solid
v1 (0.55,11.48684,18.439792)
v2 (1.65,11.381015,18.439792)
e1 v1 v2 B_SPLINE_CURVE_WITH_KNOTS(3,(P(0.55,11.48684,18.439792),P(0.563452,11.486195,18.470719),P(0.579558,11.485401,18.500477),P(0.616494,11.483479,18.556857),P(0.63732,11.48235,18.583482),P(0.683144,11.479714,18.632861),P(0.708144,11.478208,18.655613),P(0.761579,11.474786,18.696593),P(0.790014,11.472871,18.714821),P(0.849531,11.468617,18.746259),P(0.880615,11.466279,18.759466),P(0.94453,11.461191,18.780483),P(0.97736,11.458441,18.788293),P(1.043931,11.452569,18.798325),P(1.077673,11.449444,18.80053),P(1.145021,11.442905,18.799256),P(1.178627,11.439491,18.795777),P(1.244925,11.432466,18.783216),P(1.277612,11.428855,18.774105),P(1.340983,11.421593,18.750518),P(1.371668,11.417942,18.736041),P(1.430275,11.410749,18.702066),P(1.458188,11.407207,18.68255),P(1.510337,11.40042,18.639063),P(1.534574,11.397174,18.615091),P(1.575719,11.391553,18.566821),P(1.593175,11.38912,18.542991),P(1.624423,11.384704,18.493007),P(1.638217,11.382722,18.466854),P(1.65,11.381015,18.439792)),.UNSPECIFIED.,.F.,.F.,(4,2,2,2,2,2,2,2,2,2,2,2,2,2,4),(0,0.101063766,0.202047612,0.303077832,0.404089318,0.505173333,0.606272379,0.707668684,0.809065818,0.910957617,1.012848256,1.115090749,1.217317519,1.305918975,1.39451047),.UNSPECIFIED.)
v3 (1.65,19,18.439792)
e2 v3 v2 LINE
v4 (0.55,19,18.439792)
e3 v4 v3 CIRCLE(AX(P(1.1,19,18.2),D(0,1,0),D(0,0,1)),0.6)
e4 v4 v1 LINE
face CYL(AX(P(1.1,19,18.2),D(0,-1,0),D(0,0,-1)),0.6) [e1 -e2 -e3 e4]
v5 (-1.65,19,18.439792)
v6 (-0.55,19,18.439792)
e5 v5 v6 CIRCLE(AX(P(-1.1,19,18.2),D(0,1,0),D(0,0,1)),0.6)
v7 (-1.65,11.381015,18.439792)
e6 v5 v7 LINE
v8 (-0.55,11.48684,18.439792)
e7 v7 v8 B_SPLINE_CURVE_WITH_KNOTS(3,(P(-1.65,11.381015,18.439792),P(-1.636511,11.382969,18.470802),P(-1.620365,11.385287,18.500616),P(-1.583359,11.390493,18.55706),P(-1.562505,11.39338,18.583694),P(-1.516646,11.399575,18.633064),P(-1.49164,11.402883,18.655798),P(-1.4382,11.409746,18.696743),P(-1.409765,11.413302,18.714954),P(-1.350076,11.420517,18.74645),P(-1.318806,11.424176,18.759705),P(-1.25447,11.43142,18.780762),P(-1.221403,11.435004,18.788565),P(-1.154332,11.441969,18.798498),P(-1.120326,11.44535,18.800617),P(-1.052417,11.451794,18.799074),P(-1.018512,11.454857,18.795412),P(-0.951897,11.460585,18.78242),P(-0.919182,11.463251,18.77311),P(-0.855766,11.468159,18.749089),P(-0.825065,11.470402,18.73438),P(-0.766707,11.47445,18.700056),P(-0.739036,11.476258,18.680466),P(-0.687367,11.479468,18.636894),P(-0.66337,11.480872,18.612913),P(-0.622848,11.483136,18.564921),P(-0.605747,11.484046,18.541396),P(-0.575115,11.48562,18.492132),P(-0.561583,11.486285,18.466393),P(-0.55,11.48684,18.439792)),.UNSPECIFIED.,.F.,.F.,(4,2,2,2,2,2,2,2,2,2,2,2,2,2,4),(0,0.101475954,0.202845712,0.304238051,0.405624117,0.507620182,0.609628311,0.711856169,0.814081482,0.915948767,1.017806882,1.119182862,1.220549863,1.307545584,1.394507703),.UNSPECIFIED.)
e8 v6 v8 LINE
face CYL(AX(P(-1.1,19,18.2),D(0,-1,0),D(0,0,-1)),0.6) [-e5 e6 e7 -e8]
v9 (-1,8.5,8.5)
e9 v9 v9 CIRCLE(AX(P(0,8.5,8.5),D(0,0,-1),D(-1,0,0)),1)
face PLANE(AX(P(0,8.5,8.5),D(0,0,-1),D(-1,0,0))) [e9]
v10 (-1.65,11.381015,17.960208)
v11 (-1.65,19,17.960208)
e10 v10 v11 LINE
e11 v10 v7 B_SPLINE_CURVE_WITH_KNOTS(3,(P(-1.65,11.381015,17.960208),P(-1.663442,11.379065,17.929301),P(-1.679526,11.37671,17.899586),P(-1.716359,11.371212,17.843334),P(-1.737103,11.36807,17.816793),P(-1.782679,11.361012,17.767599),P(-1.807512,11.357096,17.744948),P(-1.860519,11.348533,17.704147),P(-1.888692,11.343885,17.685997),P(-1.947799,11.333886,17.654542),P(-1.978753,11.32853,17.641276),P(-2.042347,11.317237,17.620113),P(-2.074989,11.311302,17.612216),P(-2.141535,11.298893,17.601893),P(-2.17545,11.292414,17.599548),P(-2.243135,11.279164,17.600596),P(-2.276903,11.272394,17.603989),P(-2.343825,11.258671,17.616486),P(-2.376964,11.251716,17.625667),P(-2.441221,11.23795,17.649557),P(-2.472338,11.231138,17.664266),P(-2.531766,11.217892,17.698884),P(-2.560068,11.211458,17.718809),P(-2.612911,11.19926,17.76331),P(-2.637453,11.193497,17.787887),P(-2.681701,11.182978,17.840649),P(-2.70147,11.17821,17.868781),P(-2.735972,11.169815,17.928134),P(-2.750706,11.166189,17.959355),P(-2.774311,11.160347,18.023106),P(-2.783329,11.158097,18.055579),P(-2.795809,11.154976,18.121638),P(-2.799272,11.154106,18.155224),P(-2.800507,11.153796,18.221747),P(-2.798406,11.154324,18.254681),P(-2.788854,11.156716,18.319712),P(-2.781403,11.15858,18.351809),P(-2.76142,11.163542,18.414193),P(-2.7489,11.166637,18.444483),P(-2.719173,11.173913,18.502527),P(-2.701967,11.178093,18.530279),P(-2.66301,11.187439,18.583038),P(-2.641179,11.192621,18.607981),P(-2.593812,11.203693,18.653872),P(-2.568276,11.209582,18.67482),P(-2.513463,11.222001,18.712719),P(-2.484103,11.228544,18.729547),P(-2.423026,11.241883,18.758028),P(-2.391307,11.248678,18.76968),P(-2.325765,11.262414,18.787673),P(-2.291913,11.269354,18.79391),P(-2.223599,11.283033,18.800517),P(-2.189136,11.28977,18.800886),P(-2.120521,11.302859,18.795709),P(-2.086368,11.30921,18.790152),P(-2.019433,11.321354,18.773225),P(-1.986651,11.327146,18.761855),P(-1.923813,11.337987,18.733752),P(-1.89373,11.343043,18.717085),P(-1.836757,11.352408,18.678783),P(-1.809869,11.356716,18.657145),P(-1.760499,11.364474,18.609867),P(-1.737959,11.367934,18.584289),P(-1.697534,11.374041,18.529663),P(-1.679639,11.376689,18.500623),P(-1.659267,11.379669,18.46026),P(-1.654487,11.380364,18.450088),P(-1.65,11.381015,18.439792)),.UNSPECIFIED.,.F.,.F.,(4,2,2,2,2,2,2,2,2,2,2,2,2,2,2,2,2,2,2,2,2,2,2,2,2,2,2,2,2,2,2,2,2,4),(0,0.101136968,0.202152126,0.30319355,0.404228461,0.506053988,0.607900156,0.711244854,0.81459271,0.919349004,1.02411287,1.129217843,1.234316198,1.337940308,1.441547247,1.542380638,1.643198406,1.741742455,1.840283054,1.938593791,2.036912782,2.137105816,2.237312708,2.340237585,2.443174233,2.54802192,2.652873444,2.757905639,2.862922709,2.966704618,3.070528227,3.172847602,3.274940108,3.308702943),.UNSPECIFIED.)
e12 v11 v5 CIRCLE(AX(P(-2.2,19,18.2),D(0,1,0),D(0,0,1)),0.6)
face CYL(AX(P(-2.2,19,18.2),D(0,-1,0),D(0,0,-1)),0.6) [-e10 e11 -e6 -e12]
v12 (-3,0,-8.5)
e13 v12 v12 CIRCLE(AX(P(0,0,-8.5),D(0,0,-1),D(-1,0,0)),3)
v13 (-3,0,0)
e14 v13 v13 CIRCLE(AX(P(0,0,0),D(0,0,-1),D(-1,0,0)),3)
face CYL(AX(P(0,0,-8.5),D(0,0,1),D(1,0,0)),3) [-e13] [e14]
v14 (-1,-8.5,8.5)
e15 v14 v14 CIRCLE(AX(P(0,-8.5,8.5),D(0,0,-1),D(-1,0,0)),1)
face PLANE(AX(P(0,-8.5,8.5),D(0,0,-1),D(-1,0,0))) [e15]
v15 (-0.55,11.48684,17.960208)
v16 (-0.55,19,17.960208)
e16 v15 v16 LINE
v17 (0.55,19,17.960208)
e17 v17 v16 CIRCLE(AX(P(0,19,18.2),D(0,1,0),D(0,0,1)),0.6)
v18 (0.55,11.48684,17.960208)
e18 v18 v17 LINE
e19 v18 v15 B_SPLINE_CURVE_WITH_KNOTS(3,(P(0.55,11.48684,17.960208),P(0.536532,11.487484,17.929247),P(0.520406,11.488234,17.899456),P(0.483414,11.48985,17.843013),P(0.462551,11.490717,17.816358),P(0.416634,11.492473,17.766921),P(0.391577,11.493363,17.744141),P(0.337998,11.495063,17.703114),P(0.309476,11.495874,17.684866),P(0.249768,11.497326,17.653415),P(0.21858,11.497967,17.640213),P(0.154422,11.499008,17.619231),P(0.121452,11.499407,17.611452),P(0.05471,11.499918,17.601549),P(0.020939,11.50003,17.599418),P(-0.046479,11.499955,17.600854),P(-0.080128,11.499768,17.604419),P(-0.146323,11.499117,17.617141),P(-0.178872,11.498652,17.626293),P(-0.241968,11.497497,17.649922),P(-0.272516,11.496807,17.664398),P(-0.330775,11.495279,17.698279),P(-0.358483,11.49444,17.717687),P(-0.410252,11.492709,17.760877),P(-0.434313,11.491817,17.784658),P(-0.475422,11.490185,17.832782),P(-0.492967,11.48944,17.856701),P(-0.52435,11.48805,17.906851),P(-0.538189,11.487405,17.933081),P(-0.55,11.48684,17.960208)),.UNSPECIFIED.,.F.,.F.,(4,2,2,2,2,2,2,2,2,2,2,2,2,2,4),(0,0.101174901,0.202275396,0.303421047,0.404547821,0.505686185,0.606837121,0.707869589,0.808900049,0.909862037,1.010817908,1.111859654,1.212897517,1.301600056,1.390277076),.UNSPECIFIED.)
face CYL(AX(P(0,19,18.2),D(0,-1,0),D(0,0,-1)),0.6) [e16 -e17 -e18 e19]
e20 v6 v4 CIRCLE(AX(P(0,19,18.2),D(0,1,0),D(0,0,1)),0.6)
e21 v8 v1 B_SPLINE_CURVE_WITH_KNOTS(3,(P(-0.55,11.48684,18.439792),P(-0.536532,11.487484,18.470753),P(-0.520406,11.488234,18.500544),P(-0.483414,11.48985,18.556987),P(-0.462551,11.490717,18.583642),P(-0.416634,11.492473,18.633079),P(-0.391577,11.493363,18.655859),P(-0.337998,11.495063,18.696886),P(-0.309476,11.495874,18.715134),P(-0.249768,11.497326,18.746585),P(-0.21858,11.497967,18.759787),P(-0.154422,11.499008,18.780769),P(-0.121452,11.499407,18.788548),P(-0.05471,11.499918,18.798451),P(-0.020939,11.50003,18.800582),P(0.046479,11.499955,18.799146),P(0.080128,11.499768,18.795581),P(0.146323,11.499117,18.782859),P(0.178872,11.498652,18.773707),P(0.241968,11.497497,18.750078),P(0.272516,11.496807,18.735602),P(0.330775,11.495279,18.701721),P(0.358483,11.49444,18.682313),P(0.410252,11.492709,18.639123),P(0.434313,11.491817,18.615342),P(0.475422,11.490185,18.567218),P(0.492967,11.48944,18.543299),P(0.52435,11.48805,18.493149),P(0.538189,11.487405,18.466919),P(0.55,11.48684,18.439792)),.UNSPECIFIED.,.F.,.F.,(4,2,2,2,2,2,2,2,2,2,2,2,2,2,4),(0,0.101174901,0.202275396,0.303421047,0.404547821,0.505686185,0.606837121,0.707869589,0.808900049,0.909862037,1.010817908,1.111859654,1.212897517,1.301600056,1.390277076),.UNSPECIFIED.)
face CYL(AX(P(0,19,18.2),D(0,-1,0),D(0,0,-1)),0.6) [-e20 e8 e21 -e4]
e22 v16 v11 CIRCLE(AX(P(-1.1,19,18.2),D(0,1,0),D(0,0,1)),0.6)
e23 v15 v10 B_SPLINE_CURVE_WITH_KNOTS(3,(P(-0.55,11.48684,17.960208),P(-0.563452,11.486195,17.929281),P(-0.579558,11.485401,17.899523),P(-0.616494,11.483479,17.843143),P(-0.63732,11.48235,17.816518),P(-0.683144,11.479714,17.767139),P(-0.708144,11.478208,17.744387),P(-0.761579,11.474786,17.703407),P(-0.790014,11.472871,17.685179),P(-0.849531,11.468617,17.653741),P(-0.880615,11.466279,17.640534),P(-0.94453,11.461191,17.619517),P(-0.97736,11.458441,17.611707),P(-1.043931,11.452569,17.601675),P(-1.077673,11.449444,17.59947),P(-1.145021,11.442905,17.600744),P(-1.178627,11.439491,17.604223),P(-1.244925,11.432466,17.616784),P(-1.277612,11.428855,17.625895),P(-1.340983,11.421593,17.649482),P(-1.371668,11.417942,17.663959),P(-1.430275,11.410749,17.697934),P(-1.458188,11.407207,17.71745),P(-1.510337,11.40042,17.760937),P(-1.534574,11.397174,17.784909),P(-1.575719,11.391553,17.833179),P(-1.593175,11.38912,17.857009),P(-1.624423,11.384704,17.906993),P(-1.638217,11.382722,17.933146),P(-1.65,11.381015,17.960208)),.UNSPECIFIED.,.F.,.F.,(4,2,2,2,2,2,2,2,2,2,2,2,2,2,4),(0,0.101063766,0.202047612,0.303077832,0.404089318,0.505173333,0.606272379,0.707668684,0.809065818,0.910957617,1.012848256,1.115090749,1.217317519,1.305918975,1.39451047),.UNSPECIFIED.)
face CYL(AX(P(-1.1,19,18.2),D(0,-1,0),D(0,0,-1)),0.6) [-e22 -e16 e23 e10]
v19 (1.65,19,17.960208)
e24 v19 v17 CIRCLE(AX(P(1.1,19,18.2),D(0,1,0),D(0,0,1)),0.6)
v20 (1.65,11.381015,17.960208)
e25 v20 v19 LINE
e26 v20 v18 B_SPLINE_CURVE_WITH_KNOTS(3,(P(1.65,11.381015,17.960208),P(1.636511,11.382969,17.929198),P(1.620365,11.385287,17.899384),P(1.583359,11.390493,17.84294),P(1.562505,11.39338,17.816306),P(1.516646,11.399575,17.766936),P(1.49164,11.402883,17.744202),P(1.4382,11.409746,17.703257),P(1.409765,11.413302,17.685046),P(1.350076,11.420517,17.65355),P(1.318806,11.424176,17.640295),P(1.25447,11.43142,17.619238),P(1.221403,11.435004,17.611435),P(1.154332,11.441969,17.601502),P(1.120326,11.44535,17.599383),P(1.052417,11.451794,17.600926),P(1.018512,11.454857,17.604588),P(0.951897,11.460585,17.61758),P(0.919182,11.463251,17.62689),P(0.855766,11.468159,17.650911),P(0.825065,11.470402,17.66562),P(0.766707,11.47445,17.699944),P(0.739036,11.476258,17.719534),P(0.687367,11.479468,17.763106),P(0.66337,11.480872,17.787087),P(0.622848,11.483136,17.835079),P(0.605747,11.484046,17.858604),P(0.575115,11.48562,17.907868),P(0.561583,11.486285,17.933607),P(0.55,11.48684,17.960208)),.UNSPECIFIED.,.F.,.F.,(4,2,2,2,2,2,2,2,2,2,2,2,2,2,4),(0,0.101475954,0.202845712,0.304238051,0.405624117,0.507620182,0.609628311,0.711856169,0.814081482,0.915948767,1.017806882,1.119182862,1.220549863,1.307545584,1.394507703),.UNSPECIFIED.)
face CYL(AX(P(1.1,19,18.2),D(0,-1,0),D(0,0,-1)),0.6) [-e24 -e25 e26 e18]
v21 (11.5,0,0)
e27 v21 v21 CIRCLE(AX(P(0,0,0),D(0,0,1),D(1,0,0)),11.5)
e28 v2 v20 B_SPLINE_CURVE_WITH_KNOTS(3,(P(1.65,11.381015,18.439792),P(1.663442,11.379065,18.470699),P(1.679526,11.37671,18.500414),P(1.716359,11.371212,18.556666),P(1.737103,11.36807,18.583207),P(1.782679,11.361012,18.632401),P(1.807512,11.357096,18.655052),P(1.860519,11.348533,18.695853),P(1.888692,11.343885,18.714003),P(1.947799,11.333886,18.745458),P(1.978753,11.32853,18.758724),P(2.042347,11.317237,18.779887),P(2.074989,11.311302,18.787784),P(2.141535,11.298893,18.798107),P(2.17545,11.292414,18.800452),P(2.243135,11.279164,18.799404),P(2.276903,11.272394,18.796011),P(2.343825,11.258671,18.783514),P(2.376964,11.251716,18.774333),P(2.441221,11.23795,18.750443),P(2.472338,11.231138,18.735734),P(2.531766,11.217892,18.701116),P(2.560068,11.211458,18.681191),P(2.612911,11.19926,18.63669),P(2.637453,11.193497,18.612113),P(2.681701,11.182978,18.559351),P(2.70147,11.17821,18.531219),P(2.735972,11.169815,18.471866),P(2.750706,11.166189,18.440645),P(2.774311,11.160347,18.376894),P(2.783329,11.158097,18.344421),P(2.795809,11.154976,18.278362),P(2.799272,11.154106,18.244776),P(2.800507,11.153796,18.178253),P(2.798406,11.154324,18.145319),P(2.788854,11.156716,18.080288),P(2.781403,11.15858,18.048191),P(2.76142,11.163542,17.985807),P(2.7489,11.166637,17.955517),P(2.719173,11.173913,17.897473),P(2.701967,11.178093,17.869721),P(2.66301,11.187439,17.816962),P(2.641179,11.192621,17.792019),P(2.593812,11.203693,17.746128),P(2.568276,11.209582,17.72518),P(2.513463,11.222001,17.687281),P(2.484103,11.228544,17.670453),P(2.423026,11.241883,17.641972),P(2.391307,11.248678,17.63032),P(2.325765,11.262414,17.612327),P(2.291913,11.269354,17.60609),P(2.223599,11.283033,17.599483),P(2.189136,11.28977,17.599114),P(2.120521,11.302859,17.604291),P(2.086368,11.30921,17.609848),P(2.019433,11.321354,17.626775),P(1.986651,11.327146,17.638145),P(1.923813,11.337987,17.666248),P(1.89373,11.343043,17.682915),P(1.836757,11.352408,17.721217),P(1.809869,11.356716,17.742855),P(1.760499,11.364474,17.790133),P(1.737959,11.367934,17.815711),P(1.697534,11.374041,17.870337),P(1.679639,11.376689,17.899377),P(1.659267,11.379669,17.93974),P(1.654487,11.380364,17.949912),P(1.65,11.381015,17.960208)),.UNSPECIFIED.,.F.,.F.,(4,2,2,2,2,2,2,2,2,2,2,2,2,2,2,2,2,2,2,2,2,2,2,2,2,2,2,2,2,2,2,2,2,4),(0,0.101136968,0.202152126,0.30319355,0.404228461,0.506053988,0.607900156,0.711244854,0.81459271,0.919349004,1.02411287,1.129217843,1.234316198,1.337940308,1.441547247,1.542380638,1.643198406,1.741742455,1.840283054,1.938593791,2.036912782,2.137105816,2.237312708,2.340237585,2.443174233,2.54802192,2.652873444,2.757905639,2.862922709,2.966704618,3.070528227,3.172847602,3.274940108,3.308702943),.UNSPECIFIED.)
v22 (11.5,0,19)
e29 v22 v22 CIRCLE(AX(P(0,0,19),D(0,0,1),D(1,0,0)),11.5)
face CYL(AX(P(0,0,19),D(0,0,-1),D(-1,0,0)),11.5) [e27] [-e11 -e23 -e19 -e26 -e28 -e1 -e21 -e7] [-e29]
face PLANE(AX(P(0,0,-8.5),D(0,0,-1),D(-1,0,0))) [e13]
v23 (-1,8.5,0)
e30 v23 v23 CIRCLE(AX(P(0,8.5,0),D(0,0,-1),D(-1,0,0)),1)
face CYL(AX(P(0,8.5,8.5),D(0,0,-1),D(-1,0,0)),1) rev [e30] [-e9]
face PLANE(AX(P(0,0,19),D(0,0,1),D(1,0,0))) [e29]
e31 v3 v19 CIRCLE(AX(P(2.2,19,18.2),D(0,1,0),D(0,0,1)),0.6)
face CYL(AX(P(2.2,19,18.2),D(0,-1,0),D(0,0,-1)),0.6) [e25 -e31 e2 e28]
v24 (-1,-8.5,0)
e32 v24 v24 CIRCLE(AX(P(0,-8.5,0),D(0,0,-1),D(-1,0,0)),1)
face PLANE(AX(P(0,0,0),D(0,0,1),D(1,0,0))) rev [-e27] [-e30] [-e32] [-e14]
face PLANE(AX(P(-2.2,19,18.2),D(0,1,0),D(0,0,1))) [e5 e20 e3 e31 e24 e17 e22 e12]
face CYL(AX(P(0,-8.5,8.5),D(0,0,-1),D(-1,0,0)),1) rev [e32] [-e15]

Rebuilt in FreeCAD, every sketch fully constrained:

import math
import FreeCAD as App
import Part
import Sketcher

V = App.Vector
Q = App.Units.Quantity

doc = App.newDocument("Part")
body = doc.addObject("PartDesign::Body", "Body")

# Sketch on XY plane
sketch1 = doc.addObject("Sketcher::SketchObject", "Sketch")
body.addObject(sketch1)
sketch1.AttachmentSupport = (doc.XY_Plane, [""])
sketch1.MapMode = "FlatFace"
sketch1.addGeometry(Part.Circle(V(0, 0, 0), V(0, 0, 1), 12), False)
sketch1.addConstraint([
    Sketcher.Constraint("Coincident", 0, 3, -1, 1),
    Sketcher.Constraint("Diameter", 0, Q("23 mm")),
])
pad1 = doc.addObject("PartDesign::Pad", "Pad")
body.addObject(pad1)
pad1.Profile = sketch1
pad1.Length = 19

# Sketch on XZ plane
sketch2 = doc.addObject("Sketcher::SketchObject", "Sketch001")
body.addObject(sketch2)
sketch2.AttachmentSupport = (doc.XZ_Plane, [""])
sketch2.MapMode = "FlatFace"
sketch2.addGeometry([
    Part.ArcOfCircle(Part.Circle(V(0, 18.2, 0), V(0, 0, 1), 0.6), math.radians(-156), math.radians(-24)),  # 0
    Part.ArcOfCircle(Part.Circle(V(-1.1, 18.2, 0), V(0, 0, 1), 0.6), math.radians(-156), math.radians(-24)),  # 1
    Part.ArcOfCircle(Part.Circle(V(-2.2, 18.2, 0), V(0, 0, 1), 0.6), math.radians(24), math.radians(336)),  # 2
    Part.ArcOfCircle(Part.Circle(V(-1.1, 18.2, 0), V(0, 0, 1), 0.6), math.radians(24), math.radians(156)),  # 3
    Part.ArcOfCircle(Part.Circle(V(0, 18.2, 0), V(0, 0, 1), 0.6), math.radians(24), math.radians(156)),  # 4
    Part.ArcOfCircle(Part.Circle(V(1.1, 18.2, 0), V(0, 0, 1), 0.6), math.radians(24), math.radians(156)),  # 5
    Part.ArcOfCircle(Part.Circle(V(2.2, 18.2, 0), V(0, 0, 1), 0.6), math.radians(-156), math.radians(156)),  # 6
    Part.ArcOfCircle(Part.Circle(V(1.1, 18.2, 0), V(0, 0, 1), 0.6), math.radians(-156), math.radians(-24)),  # 7
], False)
sketch2.addConstraint([
    Sketcher.Constraint("Coincident", 0, 1, 1, 2),
    Sketcher.Constraint("Coincident", 1, 1, 2, 2),
    Sketcher.Constraint("Coincident", 2, 1, 3, 2),
    Sketcher.Constraint("Coincident", 3, 1, 4, 2),
    Sketcher.Constraint("Coincident", 4, 1, 5, 2),
    Sketcher.Constraint("Coincident", 5, 1, 6, 2),
    Sketcher.Constraint("Coincident", 6, 1, 7, 2),
    Sketcher.Constraint("Coincident", 7, 1, 0, 2),
    Sketcher.Constraint("Coincident", 3, 3, 1, 3),
    Sketcher.Constraint("Coincident", 4, 3, 0, 3),
    Sketcher.Constraint("Coincident", 7, 3, 5, 3),
    Sketcher.Constraint("Equal", 0, 1),
    Sketcher.Constraint("Equal", 1, 2),
    Sketcher.Constraint("Equal", 2, 3),
    Sketcher.Constraint("Equal", 3, 4),
    Sketcher.Constraint("Equal", 4, 5),
    Sketcher.Constraint("Equal", 5, 6),
    Sketcher.Constraint("Equal", 6, 7),
    Sketcher.Constraint("Symmetric", 1, 3, 5, 3, -2),
    Sketcher.Constraint("Symmetric", 2, 3, 6, 3, -2),
    Sketcher.Constraint("PointOnObject", 0, 3, -2),
    Sketcher.Constraint("Horizontal", 0, 3, 1, 3),
    Sketcher.Constraint("Horizontal", 1, 3, 2, 3),
    Sketcher.Constraint("Horizontal", 0, 1, 1, 1),
    Sketcher.Constraint("Radius", 0, Q("0.6 mm")),
    Sketcher.Constraint("DistanceY", -1, 1, 0, 3, Q("18.2 mm")),
    Sketcher.Constraint("DistanceX", 1, 3, -1, 1, Q("1.1 mm")),
])
pad2 = doc.addObject("PartDesign::Pad", "Pad001")
body.addObject(pad2)
pad2.Profile = sketch2
pad2.Length = 19
pad2.Reversed = True

# Sketch on XY plane
sketch3 = doc.addObject("Sketcher::SketchObject", "Sketch002")
body.addObject(sketch3)
sketch3.AttachmentSupport = (doc.XY_Plane, [""])
sketch3.MapMode = "FlatFace"
sketch3.addGeometry(Part.Circle(V(0, 0, 0), V(0, 0, 1), 3), False)
sketch3.addConstraint([
    Sketcher.Constraint("Coincident", 0, 3, -1, 1),
    Sketcher.Constraint("Diameter", 0, Q("6 mm")),
])
pad3 = doc.addObject("PartDesign::Pad", "Pad002")
body.addObject(pad3)
pad3.Profile = sketch3
pad3.Length = 8.5
pad3.Reversed = True

# Sketch on XY plane
sketch4 = doc.addObject("Sketcher::SketchObject", "Sketch003")
body.addObject(sketch4)
sketch4.AttachmentSupport = (doc.XY_Plane, [""])
sketch4.MapMode = "FlatFace"
sketch4.addGeometry([
    Part.Circle(V(0, -8.5, 0), V(0, 0, 1), 1),
    Part.Circle(V(0, 8.5, 0), V(0, 0, 1), 1),
], False)
sketch4.addConstraint([
    Sketcher.Constraint("Equal", 0, 1),
    Sketcher.Constraint("Symmetric", 0, 3, 1, 3, -1, 1),
    Sketcher.Constraint("PointOnObject", 0, 3, -2),
    Sketcher.Constraint("Diameter", 0, Q("2 mm")),
    Sketcher.Constraint("DistanceY", 0, 3, 1, 3, Q("17 mm")),
])
pocket1 = doc.addObject("PartDesign::Pocket", "Pocket")
body.addObject(pocket1)
pocket1.Profile = sketch4
pocket1.Length = 8.5
pocket1.Reversed = True

doc.recompute()
